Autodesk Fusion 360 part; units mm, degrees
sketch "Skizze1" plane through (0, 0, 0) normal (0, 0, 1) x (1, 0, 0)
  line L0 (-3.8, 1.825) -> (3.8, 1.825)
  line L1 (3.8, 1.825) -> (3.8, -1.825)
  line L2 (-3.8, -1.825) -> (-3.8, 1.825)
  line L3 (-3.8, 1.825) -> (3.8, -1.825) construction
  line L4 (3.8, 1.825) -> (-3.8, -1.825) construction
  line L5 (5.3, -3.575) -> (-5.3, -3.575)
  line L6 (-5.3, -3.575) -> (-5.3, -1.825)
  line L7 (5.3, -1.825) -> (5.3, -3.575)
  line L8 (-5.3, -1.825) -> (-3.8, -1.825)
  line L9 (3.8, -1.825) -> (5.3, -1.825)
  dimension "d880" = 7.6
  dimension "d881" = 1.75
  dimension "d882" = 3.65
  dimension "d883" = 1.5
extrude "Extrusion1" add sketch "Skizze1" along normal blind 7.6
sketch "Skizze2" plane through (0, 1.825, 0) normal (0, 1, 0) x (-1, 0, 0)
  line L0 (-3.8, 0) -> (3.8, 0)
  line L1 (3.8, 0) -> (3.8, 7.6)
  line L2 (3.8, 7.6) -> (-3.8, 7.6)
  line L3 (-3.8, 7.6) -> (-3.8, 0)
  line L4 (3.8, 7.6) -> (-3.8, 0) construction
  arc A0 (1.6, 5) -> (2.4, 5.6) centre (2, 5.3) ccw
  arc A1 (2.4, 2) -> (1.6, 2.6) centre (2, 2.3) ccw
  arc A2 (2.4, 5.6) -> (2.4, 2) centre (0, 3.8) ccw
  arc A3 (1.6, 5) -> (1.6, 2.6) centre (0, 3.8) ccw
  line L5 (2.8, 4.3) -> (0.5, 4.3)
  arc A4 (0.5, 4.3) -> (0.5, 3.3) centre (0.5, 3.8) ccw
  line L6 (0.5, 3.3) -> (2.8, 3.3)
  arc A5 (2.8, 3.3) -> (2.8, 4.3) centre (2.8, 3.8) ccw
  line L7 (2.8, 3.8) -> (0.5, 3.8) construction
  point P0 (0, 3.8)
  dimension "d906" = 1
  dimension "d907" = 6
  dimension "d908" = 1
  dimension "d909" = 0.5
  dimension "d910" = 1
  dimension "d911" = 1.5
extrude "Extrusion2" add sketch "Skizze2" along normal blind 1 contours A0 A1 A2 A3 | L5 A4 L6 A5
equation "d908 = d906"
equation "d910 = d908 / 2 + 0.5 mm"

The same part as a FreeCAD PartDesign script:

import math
import FreeCAD as App
import Part
import Sketcher

V = App.Vector


def add_polygon(sketch, points):
    """Adds a closed chain of lines whose ends are joined by coincident constraints."""
    first, n = sketch.GeometryCount, len(points)
    for a, b in zip(points, points[1:] + points[:1]):
        sketch.addGeometry(Part.LineSegment(App.Vector(*a, 0), App.Vector(*b, 0)), False)
    for i in range(n):
        sketch.addConstraint(Sketcher.Constraint("Coincident", first + i, 2, first + (i + 1) % n, 1))

doc = App.newDocument("Part")
body = doc.addObject("PartDesign::Body", "Body")

sketch1 = doc.addObject("Sketcher::SketchObject", "Sketch")
body.addObject(sketch1)
sketch1.AttachmentSupport = (doc.XY_Plane, [""])
sketch1.MapMode = "FlatFace"
add_polygon(sketch1, [(3.8, 1.8), (-3.8, 1.8), (-3.8, -1.8), (-5.3, -1.8), (-5.3, -3.6), (5.3, -3.6), (5.3, -1.8), (3.8, -1.8)])
sketch1.addConstraint(Sketcher.Constraint("Horizontal", 0))
sketch1.addConstraint(Sketcher.Constraint("Vertical", 1))
sketch1.addConstraint(Sketcher.Constraint("Horizontal", 2))
sketch1.addConstraint(Sketcher.Constraint("Vertical", 3))
sketch1.addConstraint(Sketcher.Constraint("Horizontal", 4))
sketch1.addConstraint(Sketcher.Constraint("Vertical", 5))
sketch1.addConstraint(Sketcher.Constraint("Horizontal", 6))
sketch1.addConstraint(Sketcher.Constraint("Vertical", 7))
sketch1.addConstraint(Sketcher.Constraint("Symmetric", 0, 2, 6, 2, -1, 1))
sketch1.addConstraint(Sketcher.Constraint("Symmetric", 2, 2, 5, 2, -2))
sketch1.addConstraint(Sketcher.Constraint("DistanceX", 0, 2, 0, 1, 7.6))
sketch1.addConstraint(Sketcher.Constraint("DistanceX", 2, 2, 2, 1, 1.5))
sketch1.addConstraint(Sketcher.Constraint("DistanceY", 1, 2, 1, 1, 3.65))
sketch1.addConstraint(Sketcher.Constraint("DistanceY", 3, 2, 3, 1, 1.75))
pad1 = doc.addObject("PartDesign::Pad", "Pad")
body.addObject(pad1)
pad1.Profile = sketch1
pad1.Length = 7.6

sketch2 = doc.addObject("Sketcher::SketchObject", "Sketch001")
body.addObject(sketch2)
sketch2.AttachmentSupport = (doc.XZ_Plane, [""])
sketch2.MapMode = "FlatFace"
sketch2.AttachmentOffset = App.Placement(V(0, 0, -1.825), App.Rotation())
sketch2.addGeometry(Part.ArcOfCircle(Part.Circle(V(0, 3.8, 0), V(0, 0, 1), 2), math.radians(-143), math.radians(143)), False)
sketch2.addGeometry(Part.ArcOfCircle(Part.Circle(V(-2, 5.3, 0), V(0, 0, 1), 0.5), math.radians(143), math.radians(323)), False)
sketch2.addGeometry(Part.ArcOfCircle(Part.Circle(V(0, 3.8, 0), V(0, 0, 1), 3), math.radians(-143), math.radians(143)), False)
sketch2.addGeometry(Part.ArcOfCircle(Part.Circle(V(-2, 2.3, 0), V(0, 0, 1), 0.5), math.radians(37), math.radians(217)), False)
sketch2.addGeometry(Part.ArcOfCircle(Part.Circle(V(-2.8, 3.8, 0), V(0, 0, 1), 0.5), math.radians(90), math.radians(270)), False)
sketch2.addGeometry(Part.LineSegment(V(-2.8, 4.3, 0), V(-0.5, 4.3, 0)), False)
sketch2.addGeometry(Part.ArcOfCircle(Part.Circle(V(-0.5, 3.8, 0), V(0, 0, 1), 0.5), math.radians(-90), math.radians(90)), False)
sketch2.addGeometry(Part.LineSegment(V(-0.5, 3.3, 0), V(-2.8, 3.3, 0)), False)
sketch2.addConstraint(Sketcher.Constraint("Tangent", 0, 2, 1, 2))
sketch2.addConstraint(Sketcher.Constraint("Tangent", 1, 1, 2, 2))
sketch2.addConstraint(Sketcher.Constraint("Tangent", 2, 1, 3, 2))
sketch2.addConstraint(Sketcher.Constraint("Tangent", 3, 1, 0, 1))
sketch2.addConstraint(Sketcher.Constraint("Tangent", 4, 1, 5, 1))
sketch2.addConstraint(Sketcher.Constraint("Tangent", 5, 2, 6, 2))
sketch2.addConstraint(Sketcher.Constraint("Tangent", 6, 1, 7, 1))
sketch2.addConstraint(Sketcher.Constraint("Tangent", 7, 2, 4, 2))
sketch2.addConstraint(Sketcher.Constraint("Horizontal", 5))
sketch2.addConstraint(Sketcher.Constraint("Horizontal", 7))
sketch2.addConstraint(Sketcher.Constraint("Coincident", 2, 3, 0, 3))
sketch2.addConstraint(Sketcher.Constraint("Equal", 3, 4))
sketch2.addConstraint(Sketcher.Constraint("PointOnObject", 0, 3, -2))
sketch2.addConstraint(Sketcher.Constraint("Horizontal", 2, 3, 4, 3))
sketch2.addConstraint(Sketcher.Constraint("Vertical", 1, 3, 3, 3))
sketch2.addConstraint(Sketcher.Constraint("Radius", 2, 3.0))
sketch2.addConstraint(Sketcher.Constraint("Radius", 1, 0.5))
sketch2.addConstraint(Sketcher.Constraint("DistanceY", 4, 1, 1, 3, 1.0))
sketch2.addConstraint(Sketcher.Constraint("DistanceX", 6, 3, -1, 1, 0.5))
sketch2.addConstraint(Sketcher.Constraint("DistanceX", 5, 1, 5, 2, 2.3))
sketch2.addConstraint(Sketcher.Constraint("DistanceY", -1, 1, 0, 2, 5.0))
pad2 = doc.addObject("PartDesign::Pad", "Pad001")
body.addObject(pad2)
pad2.Profile = sketch2
pad2.Length = 1
pad2.Reversed = True

doc.recompute()
